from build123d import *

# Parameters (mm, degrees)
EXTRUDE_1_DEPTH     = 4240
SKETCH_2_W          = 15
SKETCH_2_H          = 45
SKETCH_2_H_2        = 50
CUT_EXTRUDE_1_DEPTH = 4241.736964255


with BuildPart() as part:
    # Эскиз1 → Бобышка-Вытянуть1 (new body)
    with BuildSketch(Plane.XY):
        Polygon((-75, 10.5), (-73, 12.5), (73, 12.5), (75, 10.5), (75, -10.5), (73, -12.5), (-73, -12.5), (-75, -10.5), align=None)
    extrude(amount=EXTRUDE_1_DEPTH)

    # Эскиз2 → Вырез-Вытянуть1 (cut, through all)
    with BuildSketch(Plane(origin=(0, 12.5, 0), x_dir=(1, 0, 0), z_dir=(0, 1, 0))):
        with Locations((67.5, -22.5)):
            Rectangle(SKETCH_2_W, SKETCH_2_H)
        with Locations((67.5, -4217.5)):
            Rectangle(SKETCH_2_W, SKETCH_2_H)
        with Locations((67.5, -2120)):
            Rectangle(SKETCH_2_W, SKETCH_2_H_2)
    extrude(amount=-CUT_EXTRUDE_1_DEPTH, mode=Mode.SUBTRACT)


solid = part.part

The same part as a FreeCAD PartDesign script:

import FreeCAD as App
import Part
import Sketcher

V = App.Vector


def add_polygon(sketch, points):
    """Adds a closed chain of lines whose ends are joined by coincident constraints."""
    first, n = sketch.GeometryCount, len(points)
    for a, b in zip(points, points[1:] + points[:1]):
        sketch.addGeometry(Part.LineSegment(App.Vector(*a, 0), App.Vector(*b, 0)), False)
    for i in range(n):
        sketch.addConstraint(Sketcher.Constraint("Coincident", first + i, 2, first + (i + 1) % n, 1))

doc = App.newDocument("Part")
body = doc.addObject("PartDesign::Body", "Body")

# Sketch on XY plane
sketch1 = body.newObject("Sketcher::SketchObject", "Sketch")
sketch1.AttachmentSupport = (doc.getObject("XY_Plane"), [""])
sketch1.MapMode = "FlatFace"
add_polygon(sketch1, [(-73, 12.5), (-75, 10.5), (-75, -10.5), (-73, -12.5), (73, -12.5), (75, -10.5), (75, 10.5), (73, 12.5)])  # lines 0-7
sketch1.addConstraint([
    Sketcher.Constraint("Vertical", 1),
    Sketcher.Constraint("Horizontal", 3),
    Sketcher.Constraint("Vertical", 5),
    Sketcher.Constraint("Horizontal", 7),
    Sketcher.Constraint("Symmetric", 0, 2, 4, 2, -1, 1),
    Sketcher.Constraint("Symmetric", 2, 2, 6, 2, -1, 1),
    Sketcher.Constraint("Perpendicular", 0, 2),
    Sketcher.Constraint("Perpendicular", 2, 4),
    Sketcher.Constraint("Perpendicular", 4, 6),
    Sketcher.Constraint("Horizontal", 1, 2, 4, 2),
    Sketcher.Constraint("Vertical", 3, 2, 6, 2),
    Sketcher.Constraint("DistanceX", 3, 1, 3, 2, 146.0),
    Sketcher.Constraint("DistanceY", 1, 2, 1, 1, 21.0),
    Sketcher.Constraint("DistanceX", 0, 2, -1, 1, 75.0),
])
pad1 = body.newObject("PartDesign::Pad", "Pad")
pad1.Profile = sketch1
pad1.Length = 4240

# Sketch on XZ plane
sketch2 = body.newObject("Sketcher::SketchObject", "Sketch001")
sketch2.AttachmentSupport = (doc.getObject("XZ_Plane"), [""])
sketch2.MapMode = "FlatFace"
sketch2.AttachmentOffset = App.Placement(V(0, 0, -12.5), App.Rotation())
add_polygon(sketch2, [(60, 0), (60, 45), (75, 45), (75, 0)])  # lines 0-3
add_polygon(sketch2, [(60, 4195), (60, 4240), (75, 4240), (75, 4195)])  # lines 4-7
add_polygon(sketch2, [(60, 2095), (60, 2145), (75, 2145), (75, 2095)])  # lines 8-11
sketch2.addConstraint([
    Sketcher.Constraint("Vertical", 0),
    Sketcher.Constraint("Horizontal", 1),
    Sketcher.Constraint("Vertical", 2),
    Sketcher.Constraint("Horizontal", 3),
    Sketcher.Constraint("Vertical", 4),
    Sketcher.Constraint("Horizontal", 5),
    Sketcher.Constraint("Vertical", 6),
    Sketcher.Constraint("Horizontal", 7),
    Sketcher.Constraint("Vertical", 8),
    Sketcher.Constraint("Horizontal", 9),
    Sketcher.Constraint("Vertical", 10),
    Sketcher.Constraint("Horizontal", 11),
    Sketcher.Constraint("PointOnObject", 2, 2, -1),
    Sketcher.Constraint("Vertical", 3, 2, 4, 2),
    Sketcher.Constraint("Vertical", 2, 2, 5, 2),
    Sketcher.Constraint("Vertical", 7, 2, 8, 2),
    Sketcher.Constraint("Vertical", 6, 2, 9, 2),
    Sketcher.Constraint("Equal", 2, 4),
    Sketcher.Constraint("DistanceX", 1, 1, 1, 2, 15.0),
    Sketcher.Constraint("DistanceY", 0, 1, 0, 2, 45.0),
    Sketcher.Constraint("DistanceY", 8, 1, 8, 2, 50.0),
    Sketcher.Constraint("DistanceX", -1, 1, 0, 2, 60.0),
    Sketcher.Constraint("DistanceY", -1, 1, 4, 2, 4240.0),
    Sketcher.Constraint("DistanceY", -1, 1, 8, 2, 2145.0),
])
pocket1 = body.newObject("PartDesign::Pocket", "Pocket")
pocket1.Profile = sketch2
pocket1.Type = "ThroughAll"
pocket1.Reversed = True

doc.recompute()
